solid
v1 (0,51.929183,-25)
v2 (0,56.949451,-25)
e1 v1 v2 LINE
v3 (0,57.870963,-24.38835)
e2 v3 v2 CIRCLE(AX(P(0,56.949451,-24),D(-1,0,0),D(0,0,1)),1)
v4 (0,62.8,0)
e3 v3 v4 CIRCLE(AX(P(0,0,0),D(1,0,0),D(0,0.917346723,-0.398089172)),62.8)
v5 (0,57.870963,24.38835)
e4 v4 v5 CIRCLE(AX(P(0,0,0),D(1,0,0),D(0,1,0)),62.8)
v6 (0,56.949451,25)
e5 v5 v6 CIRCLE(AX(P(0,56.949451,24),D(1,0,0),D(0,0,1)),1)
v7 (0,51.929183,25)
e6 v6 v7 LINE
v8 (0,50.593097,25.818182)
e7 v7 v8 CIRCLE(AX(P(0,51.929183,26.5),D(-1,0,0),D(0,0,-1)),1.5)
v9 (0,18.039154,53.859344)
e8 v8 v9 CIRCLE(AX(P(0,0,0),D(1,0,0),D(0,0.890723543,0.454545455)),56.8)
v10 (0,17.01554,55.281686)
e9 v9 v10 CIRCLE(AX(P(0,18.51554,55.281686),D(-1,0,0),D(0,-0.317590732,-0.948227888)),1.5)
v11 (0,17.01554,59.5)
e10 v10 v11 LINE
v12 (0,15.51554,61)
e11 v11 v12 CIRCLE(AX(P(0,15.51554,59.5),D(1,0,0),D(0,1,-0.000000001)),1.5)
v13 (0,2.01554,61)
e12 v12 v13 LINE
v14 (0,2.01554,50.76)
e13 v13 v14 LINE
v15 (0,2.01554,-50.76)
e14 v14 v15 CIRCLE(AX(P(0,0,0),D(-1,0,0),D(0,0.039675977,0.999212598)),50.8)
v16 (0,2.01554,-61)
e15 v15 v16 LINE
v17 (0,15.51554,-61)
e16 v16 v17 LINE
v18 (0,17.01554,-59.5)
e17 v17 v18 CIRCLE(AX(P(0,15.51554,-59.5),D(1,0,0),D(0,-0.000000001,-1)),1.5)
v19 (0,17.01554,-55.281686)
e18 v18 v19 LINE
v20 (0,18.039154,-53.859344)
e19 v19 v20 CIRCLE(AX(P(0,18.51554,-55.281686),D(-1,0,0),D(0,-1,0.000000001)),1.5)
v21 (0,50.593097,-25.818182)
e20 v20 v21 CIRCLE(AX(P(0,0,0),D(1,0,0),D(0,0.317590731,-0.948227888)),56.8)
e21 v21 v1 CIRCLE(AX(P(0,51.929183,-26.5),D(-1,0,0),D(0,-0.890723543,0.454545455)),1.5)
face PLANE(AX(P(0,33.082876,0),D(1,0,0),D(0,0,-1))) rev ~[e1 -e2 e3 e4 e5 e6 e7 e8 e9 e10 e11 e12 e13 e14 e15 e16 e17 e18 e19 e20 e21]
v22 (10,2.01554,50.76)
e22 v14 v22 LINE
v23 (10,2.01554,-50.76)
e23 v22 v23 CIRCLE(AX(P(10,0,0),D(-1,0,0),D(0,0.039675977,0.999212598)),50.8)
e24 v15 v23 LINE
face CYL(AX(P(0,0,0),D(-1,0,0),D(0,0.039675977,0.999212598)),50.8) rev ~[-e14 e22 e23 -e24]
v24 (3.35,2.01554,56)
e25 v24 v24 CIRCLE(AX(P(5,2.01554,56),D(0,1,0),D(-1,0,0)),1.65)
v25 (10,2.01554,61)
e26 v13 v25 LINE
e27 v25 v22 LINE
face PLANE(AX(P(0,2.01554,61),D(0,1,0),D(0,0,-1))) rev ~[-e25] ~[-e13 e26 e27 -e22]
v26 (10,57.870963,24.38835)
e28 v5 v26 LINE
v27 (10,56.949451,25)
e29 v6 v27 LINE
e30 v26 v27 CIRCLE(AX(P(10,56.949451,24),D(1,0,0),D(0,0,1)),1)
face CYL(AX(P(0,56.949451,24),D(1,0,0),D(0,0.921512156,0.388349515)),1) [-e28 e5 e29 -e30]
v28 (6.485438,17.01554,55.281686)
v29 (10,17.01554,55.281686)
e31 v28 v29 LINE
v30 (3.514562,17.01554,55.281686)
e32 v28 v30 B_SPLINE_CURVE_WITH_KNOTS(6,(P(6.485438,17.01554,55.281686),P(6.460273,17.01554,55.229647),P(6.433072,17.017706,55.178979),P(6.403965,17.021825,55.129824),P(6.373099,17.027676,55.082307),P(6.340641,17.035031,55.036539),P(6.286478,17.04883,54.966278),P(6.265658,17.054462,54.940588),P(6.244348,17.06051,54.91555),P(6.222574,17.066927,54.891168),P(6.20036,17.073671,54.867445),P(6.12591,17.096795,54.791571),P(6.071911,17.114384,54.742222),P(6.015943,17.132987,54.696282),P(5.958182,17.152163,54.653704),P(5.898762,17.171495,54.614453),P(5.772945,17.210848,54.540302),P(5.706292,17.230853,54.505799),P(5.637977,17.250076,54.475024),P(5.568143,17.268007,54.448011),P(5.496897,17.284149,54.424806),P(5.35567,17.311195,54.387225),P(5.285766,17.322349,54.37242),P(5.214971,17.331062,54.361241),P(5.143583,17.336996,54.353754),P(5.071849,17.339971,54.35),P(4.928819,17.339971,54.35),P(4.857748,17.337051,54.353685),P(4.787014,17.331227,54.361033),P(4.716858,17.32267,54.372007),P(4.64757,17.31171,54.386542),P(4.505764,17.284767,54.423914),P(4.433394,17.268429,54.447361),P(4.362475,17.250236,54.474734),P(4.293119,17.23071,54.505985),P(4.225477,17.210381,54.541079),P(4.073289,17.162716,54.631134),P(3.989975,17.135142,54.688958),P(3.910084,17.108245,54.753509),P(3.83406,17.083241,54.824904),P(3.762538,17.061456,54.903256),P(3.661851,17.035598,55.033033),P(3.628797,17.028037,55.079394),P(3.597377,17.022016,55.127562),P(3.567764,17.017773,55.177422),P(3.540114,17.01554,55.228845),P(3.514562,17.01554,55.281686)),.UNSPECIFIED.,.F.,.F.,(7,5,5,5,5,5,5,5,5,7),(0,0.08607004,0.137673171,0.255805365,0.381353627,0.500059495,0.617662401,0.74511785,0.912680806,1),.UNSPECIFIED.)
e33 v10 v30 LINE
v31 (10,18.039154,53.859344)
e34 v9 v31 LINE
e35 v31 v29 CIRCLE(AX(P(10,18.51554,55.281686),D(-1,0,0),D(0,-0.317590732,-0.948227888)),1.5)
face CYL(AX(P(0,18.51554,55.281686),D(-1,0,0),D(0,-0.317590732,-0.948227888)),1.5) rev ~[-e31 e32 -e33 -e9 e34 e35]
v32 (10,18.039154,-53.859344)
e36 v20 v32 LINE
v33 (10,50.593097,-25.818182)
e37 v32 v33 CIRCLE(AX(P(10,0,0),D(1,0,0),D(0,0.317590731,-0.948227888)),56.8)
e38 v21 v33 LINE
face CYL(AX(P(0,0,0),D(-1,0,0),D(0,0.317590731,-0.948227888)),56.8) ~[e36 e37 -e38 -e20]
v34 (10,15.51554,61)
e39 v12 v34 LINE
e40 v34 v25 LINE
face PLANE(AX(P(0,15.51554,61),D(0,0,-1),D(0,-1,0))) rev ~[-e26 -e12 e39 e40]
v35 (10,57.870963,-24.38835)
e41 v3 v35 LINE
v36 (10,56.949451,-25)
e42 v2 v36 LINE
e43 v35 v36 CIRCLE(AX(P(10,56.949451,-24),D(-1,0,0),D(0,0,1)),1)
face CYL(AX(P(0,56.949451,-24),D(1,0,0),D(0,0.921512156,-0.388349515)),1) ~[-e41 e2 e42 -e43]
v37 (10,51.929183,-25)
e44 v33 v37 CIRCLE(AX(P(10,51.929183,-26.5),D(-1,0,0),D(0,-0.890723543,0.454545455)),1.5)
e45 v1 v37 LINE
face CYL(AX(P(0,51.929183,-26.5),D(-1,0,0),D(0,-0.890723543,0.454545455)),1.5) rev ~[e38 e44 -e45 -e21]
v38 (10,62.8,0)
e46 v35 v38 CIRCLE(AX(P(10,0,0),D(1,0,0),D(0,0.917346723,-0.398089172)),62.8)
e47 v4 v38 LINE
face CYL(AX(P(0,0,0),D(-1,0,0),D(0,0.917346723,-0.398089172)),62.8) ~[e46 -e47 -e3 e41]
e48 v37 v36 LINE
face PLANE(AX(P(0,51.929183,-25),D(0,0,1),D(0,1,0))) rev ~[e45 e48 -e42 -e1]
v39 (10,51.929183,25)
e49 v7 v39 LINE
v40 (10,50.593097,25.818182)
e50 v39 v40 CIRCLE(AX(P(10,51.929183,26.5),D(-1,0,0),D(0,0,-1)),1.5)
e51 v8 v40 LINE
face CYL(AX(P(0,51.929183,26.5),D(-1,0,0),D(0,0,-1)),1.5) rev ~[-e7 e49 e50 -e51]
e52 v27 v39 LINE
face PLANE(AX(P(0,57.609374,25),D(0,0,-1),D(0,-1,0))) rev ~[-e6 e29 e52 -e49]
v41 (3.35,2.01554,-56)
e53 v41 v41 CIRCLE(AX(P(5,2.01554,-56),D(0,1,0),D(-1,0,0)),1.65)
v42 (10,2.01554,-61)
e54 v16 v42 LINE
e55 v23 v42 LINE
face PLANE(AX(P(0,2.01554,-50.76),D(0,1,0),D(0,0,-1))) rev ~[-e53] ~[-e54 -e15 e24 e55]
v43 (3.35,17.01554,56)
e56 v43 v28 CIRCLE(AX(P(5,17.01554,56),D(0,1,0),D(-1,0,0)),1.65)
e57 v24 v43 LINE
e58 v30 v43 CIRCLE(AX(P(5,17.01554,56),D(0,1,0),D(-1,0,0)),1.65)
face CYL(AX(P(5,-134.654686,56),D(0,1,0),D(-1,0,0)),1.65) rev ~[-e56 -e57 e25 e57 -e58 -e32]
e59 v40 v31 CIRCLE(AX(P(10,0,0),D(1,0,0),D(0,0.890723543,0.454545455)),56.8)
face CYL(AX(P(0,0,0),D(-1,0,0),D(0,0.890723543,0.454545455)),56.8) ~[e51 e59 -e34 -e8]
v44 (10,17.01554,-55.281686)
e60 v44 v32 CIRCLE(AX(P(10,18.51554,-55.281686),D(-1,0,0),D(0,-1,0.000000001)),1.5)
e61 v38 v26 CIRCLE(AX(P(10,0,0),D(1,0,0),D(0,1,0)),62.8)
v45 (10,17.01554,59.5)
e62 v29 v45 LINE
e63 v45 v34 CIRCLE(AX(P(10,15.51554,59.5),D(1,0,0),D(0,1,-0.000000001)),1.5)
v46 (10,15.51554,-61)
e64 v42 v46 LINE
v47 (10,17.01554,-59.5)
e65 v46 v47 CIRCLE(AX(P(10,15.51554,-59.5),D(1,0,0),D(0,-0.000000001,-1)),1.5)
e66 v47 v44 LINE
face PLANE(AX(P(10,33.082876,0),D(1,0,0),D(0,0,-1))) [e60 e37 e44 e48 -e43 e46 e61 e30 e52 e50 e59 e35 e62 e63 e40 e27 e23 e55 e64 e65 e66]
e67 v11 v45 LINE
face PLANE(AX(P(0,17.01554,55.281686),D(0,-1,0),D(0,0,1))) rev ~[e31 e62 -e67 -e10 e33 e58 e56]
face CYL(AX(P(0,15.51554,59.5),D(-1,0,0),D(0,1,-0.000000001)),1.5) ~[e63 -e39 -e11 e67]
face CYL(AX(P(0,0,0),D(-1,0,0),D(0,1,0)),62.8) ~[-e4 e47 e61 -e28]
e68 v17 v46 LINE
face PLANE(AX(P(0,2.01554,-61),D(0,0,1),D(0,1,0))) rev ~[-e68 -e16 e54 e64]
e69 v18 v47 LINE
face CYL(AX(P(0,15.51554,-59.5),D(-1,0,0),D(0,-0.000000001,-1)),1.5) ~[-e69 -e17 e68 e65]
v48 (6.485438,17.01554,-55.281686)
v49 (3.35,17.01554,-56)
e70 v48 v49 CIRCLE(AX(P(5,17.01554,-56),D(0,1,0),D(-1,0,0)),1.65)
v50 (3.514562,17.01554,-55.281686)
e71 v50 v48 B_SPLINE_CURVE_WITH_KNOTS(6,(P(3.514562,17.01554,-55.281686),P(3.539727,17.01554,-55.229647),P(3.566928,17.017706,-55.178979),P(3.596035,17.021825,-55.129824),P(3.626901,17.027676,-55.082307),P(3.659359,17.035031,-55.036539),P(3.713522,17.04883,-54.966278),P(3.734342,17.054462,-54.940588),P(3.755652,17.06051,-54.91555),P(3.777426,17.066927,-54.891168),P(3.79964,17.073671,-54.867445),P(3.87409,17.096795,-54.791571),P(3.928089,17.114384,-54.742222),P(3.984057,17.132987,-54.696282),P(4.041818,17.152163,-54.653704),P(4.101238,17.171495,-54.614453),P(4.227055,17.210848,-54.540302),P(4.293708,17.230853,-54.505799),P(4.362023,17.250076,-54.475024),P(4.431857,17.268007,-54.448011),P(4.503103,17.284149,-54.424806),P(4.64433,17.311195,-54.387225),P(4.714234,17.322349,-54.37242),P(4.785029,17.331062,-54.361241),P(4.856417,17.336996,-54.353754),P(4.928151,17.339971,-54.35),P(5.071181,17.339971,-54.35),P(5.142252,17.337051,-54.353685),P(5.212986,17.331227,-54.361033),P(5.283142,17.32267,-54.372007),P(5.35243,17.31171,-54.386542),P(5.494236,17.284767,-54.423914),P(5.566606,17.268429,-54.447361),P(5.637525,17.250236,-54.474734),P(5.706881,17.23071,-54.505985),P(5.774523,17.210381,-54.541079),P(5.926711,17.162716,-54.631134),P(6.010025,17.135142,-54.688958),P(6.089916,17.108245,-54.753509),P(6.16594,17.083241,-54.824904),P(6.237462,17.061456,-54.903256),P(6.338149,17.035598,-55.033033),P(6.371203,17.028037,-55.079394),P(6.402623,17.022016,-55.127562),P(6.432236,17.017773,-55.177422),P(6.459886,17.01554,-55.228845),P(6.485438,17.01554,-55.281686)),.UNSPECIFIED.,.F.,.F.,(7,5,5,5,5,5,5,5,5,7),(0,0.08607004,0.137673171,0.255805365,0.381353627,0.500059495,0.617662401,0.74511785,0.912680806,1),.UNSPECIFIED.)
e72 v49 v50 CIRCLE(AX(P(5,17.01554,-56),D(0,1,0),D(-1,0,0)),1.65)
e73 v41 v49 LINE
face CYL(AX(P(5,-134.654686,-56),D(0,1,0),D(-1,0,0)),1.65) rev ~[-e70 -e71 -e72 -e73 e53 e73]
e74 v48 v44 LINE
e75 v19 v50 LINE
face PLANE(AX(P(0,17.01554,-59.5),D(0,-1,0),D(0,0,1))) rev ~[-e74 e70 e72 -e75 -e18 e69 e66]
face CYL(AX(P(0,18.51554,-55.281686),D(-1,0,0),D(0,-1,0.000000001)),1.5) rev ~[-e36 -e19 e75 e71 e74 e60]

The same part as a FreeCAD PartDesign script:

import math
import FreeCAD as App
import Part
import Sketcher
Q = App.Units.Quantity


def edges_at(feature, points):
    """Names of the edges that pass closest to the given points."""
    edges = feature.Shape.Edges
    near = lambda p: min(range(len(edges)), key=lambda i: edges[i].distToShape(Part.Vertex(*p))[0])
    return sorted({f"Edge{near(p) + 1}" for p in points})

doc = App.newDocument("Part")
body = doc.addObject("PartDesign::Body", "Body")

# Sketch on YZ plane
sketch1 = body.newObject("Sketcher::SketchObject", "Sketch")
sketch1.AttachmentSupport = (doc.getObject("YZ_Plane"), [""])
sketch1.MapMode = "FlatFace"
sketch1.addGeometry([
    Part.ArcOfCircle(Part.Circle(App.Vector(0, 0, 0), App.Vector(0, 0, 1), 62.8), math.radians(-23), math.radians(0)),  # 0
    Part.ArcOfCircle(Part.Circle(App.Vector(0, 0, 0), App.Vector(0, 0, 1), 62.8), math.radians(0), math.radians(23)),  # 1
    Part.LineSegment(App.Vector(57.6, 25, 0), App.Vector(51.9, 25, 0)),  # 2
    Part.ArcOfCircle(Part.Circle(App.Vector(51.9, 26.5, 0), App.Vector(0, 0, 1), 1.5), math.radians(-153), math.radians(-90)),  # 3
    Part.ArcOfCircle(Part.Circle(App.Vector(0, 0, 0), App.Vector(0, 0, 1), 56.8), math.radians(27), math.radians(71)),  # 4
    Part.ArcOfCircle(Part.Circle(App.Vector(18.5, 55.3, 0), App.Vector(0, 0, 1), 1.5), math.radians(-180), math.radians(-109)),  # 5
    Part.LineSegment(App.Vector(17, 55.3, 0), App.Vector(17, 59.5, 0)),  # 6
    Part.ArcOfCircle(Part.Circle(App.Vector(15.5, 59.5, 0), App.Vector(0, 0, 1), 1.5), math.radians(0), math.radians(90)),  # 7
    Part.LineSegment(App.Vector(15.5, 61, 0), App.Vector(2, 61, 0)),  # 8
    Part.LineSegment(App.Vector(2, 61, 0), App.Vector(2, 50.8, 0)),  # 9
    Part.ArcOfCircle(Part.Circle(App.Vector(0, 0, 0), App.Vector(0, 0, 1), 50.8), math.radians(-88), math.radians(88)),  # 10
    Part.LineSegment(App.Vector(2, -50.8, 0), App.Vector(2, -61, 0)),  # 11
    Part.LineSegment(App.Vector(2, -61, 0), App.Vector(15.5, -61, 0)),  # 12
    Part.ArcOfCircle(Part.Circle(App.Vector(15.5, -59.5, 0), App.Vector(0, 0, 1), 1.5), math.radians(-90), math.radians(0)),  # 13
    Part.LineSegment(App.Vector(17, -59.5, 0), App.Vector(17, -55.3, 0)),  # 14
    Part.ArcOfCircle(Part.Circle(App.Vector(18.5, -55.3, 0), App.Vector(0, 0, 1), 1.5), math.radians(109), math.radians(180)),  # 15
    Part.ArcOfCircle(Part.Circle(App.Vector(0, 0, 0), App.Vector(0, 0, 1), 56.8), math.radians(-71), math.radians(-27)),  # 16
    Part.ArcOfCircle(Part.Circle(App.Vector(51.9, -26.5, 0), App.Vector(0, 0, 1), 1.5), math.radians(90), math.radians(153)),  # 17
    Part.LineSegment(App.Vector(51.9, -25, 0), App.Vector(57.6, -25, 0)),  # 18
], False)
sketch1.addConstraint([
    Sketcher.Constraint("Tangent", 0, 2, 1, 1),
    Sketcher.Constraint("Coincident", 1, 2, 2, 1),
    Sketcher.Constraint("Tangent", 2, 2, 3, 2),
    Sketcher.Constraint("Tangent", 3, 1, 4, 1),
    Sketcher.Constraint("Tangent", 4, 2, 5, 2),
    Sketcher.Constraint("Tangent", 5, 1, 6, 1),
    Sketcher.Constraint("Tangent", 6, 2, 7, 1),
    Sketcher.Constraint("Tangent", 7, 2, 8, 1),
    Sketcher.Constraint("Coincident", 8, 2, 9, 1),
    Sketcher.Constraint("Coincident", 9, 2, 10, 2),
    Sketcher.Constraint("Coincident", 10, 1, 11, 1),
    Sketcher.Constraint("Coincident", 11, 2, 12, 1),
    Sketcher.Constraint("Tangent", 12, 2, 13, 1),
    Sketcher.Constraint("Tangent", 13, 2, 14, 1),
    Sketcher.Constraint("Tangent", 14, 2, 15, 2),
    Sketcher.Constraint("Tangent", 15, 1, 16, 1),
    Sketcher.Constraint("Tangent", 16, 2, 17, 2),
    Sketcher.Constraint("Tangent", 17, 1, 18, 1),
    Sketcher.Constraint("Coincident", 18, 2, 0, 1),
    Sketcher.Constraint("Horizontal", 2),
    Sketcher.Constraint("Vertical", 6),
    Sketcher.Constraint("Horizontal", 8),
    Sketcher.Constraint("Vertical", 9),
    Sketcher.Constraint("Vertical", 11),
    Sketcher.Constraint("Horizontal", 12),
    Sketcher.Constraint("Vertical", 14),
    Sketcher.Constraint("Horizontal", 18),
    Sketcher.Constraint("Coincident", 0, 3, -1, 1),
    Sketcher.Constraint("Coincident", 4, 3, -1, 1),
    Sketcher.Constraint("Coincident", 10, 3, -1, 1),
    Sketcher.Constraint("Coincident", 16, 3, -1, 1),
    Sketcher.Constraint("Equal", 0, 1),
    Sketcher.Constraint("Equal", 3, 5),
    Sketcher.Constraint("Equal", 5, 7),
    Sketcher.Constraint("Equal", 7, 13),
    Sketcher.Constraint("Equal", 13, 15),
    Sketcher.Constraint("Equal", 4, 16),
    Sketcher.Constraint("Equal", 15, 17),
    Sketcher.Constraint("Symmetric", 7, 3, 13, 3, -1),
    Sketcher.Constraint("PointOnObject", 0, 2, -1),
    Sketcher.Constraint("Vertical", 3, 3, 17, 3),
    Sketcher.Constraint("Vertical", 9, 2, 10, 1),
    Sketcher.Constraint("Radius", 0, Q("62.8 mm")),
    Sketcher.Constraint("Radius", 3, Q("1.5 mm")),
    Sketcher.Constraint("Radius", 4, Q("56.8 mm")),
    Sketcher.Constraint("Radius", 10, Q("50.8 mm")),
    Sketcher.Constraint("DistanceX", 8, 2, 8, 1, Q("13.5 mm")),
    Sketcher.Constraint("DistanceY", -1, 1, 1, 2, Q("25 mm")),
    Sketcher.Constraint("DistanceY", -1, 1, 7, 2, Q("61 mm")),
    Sketcher.Constraint("DistanceY", 9, 2, 9, 1, Q("10.24 mm")),
])
pad1 = body.newObject("PartDesign::Pad", "Pad")
pad1.Profile = sketch1
pad1.Length = 10

# Sketch on XZ plane
sketch2 = body.newObject("Sketcher::SketchObject", "Sketch001")
sketch2.AttachmentSupport = (doc.getObject("XZ_Plane"), [""])
sketch2.MapMode = "FlatFace"
sketch2.AttachmentOffset = App.Placement(App.Vector(0, 0, -2.01554), App.Rotation())
sketch2.addGeometry([
    Part.Circle(App.Vector(5, -56, 0), App.Vector(0, 0, 1), 1.6),
    Part.Circle(App.Vector(5, 56, 0), App.Vector(0, 0, 1), 1.6),
], False)
sketch2.addConstraint([
    Sketcher.Constraint("Equal", 0, 1),
    Sketcher.Constraint("Symmetric", 0, 3, 1, 3, -1),
    Sketcher.Constraint("Diameter", 0, Q("3.3 mm")),
    Sketcher.Constraint("DistanceX", -1, 1, 0, 3, Q("5 mm")),
    Sketcher.Constraint("DistanceY", 0, 3, -1, 1, Q("56 mm")),
])
doc.recompute()
hole = body.newObject("PartDesign::Hole", "Hole")
hole.Profile = sketch2
hole.ThreadType = "None"
hole.Diameter = 3.3
hole.DepthType = "ThroughAll"
doc.recompute()

fillet = body.newObject("PartDesign::Fillet", "Fillet")
fillet.Base = (hole, edges_at(hole, [(5, 57.609, -25), (5, 57.609, 25)]))
fillet.Radius = 1

doc.recompute()
